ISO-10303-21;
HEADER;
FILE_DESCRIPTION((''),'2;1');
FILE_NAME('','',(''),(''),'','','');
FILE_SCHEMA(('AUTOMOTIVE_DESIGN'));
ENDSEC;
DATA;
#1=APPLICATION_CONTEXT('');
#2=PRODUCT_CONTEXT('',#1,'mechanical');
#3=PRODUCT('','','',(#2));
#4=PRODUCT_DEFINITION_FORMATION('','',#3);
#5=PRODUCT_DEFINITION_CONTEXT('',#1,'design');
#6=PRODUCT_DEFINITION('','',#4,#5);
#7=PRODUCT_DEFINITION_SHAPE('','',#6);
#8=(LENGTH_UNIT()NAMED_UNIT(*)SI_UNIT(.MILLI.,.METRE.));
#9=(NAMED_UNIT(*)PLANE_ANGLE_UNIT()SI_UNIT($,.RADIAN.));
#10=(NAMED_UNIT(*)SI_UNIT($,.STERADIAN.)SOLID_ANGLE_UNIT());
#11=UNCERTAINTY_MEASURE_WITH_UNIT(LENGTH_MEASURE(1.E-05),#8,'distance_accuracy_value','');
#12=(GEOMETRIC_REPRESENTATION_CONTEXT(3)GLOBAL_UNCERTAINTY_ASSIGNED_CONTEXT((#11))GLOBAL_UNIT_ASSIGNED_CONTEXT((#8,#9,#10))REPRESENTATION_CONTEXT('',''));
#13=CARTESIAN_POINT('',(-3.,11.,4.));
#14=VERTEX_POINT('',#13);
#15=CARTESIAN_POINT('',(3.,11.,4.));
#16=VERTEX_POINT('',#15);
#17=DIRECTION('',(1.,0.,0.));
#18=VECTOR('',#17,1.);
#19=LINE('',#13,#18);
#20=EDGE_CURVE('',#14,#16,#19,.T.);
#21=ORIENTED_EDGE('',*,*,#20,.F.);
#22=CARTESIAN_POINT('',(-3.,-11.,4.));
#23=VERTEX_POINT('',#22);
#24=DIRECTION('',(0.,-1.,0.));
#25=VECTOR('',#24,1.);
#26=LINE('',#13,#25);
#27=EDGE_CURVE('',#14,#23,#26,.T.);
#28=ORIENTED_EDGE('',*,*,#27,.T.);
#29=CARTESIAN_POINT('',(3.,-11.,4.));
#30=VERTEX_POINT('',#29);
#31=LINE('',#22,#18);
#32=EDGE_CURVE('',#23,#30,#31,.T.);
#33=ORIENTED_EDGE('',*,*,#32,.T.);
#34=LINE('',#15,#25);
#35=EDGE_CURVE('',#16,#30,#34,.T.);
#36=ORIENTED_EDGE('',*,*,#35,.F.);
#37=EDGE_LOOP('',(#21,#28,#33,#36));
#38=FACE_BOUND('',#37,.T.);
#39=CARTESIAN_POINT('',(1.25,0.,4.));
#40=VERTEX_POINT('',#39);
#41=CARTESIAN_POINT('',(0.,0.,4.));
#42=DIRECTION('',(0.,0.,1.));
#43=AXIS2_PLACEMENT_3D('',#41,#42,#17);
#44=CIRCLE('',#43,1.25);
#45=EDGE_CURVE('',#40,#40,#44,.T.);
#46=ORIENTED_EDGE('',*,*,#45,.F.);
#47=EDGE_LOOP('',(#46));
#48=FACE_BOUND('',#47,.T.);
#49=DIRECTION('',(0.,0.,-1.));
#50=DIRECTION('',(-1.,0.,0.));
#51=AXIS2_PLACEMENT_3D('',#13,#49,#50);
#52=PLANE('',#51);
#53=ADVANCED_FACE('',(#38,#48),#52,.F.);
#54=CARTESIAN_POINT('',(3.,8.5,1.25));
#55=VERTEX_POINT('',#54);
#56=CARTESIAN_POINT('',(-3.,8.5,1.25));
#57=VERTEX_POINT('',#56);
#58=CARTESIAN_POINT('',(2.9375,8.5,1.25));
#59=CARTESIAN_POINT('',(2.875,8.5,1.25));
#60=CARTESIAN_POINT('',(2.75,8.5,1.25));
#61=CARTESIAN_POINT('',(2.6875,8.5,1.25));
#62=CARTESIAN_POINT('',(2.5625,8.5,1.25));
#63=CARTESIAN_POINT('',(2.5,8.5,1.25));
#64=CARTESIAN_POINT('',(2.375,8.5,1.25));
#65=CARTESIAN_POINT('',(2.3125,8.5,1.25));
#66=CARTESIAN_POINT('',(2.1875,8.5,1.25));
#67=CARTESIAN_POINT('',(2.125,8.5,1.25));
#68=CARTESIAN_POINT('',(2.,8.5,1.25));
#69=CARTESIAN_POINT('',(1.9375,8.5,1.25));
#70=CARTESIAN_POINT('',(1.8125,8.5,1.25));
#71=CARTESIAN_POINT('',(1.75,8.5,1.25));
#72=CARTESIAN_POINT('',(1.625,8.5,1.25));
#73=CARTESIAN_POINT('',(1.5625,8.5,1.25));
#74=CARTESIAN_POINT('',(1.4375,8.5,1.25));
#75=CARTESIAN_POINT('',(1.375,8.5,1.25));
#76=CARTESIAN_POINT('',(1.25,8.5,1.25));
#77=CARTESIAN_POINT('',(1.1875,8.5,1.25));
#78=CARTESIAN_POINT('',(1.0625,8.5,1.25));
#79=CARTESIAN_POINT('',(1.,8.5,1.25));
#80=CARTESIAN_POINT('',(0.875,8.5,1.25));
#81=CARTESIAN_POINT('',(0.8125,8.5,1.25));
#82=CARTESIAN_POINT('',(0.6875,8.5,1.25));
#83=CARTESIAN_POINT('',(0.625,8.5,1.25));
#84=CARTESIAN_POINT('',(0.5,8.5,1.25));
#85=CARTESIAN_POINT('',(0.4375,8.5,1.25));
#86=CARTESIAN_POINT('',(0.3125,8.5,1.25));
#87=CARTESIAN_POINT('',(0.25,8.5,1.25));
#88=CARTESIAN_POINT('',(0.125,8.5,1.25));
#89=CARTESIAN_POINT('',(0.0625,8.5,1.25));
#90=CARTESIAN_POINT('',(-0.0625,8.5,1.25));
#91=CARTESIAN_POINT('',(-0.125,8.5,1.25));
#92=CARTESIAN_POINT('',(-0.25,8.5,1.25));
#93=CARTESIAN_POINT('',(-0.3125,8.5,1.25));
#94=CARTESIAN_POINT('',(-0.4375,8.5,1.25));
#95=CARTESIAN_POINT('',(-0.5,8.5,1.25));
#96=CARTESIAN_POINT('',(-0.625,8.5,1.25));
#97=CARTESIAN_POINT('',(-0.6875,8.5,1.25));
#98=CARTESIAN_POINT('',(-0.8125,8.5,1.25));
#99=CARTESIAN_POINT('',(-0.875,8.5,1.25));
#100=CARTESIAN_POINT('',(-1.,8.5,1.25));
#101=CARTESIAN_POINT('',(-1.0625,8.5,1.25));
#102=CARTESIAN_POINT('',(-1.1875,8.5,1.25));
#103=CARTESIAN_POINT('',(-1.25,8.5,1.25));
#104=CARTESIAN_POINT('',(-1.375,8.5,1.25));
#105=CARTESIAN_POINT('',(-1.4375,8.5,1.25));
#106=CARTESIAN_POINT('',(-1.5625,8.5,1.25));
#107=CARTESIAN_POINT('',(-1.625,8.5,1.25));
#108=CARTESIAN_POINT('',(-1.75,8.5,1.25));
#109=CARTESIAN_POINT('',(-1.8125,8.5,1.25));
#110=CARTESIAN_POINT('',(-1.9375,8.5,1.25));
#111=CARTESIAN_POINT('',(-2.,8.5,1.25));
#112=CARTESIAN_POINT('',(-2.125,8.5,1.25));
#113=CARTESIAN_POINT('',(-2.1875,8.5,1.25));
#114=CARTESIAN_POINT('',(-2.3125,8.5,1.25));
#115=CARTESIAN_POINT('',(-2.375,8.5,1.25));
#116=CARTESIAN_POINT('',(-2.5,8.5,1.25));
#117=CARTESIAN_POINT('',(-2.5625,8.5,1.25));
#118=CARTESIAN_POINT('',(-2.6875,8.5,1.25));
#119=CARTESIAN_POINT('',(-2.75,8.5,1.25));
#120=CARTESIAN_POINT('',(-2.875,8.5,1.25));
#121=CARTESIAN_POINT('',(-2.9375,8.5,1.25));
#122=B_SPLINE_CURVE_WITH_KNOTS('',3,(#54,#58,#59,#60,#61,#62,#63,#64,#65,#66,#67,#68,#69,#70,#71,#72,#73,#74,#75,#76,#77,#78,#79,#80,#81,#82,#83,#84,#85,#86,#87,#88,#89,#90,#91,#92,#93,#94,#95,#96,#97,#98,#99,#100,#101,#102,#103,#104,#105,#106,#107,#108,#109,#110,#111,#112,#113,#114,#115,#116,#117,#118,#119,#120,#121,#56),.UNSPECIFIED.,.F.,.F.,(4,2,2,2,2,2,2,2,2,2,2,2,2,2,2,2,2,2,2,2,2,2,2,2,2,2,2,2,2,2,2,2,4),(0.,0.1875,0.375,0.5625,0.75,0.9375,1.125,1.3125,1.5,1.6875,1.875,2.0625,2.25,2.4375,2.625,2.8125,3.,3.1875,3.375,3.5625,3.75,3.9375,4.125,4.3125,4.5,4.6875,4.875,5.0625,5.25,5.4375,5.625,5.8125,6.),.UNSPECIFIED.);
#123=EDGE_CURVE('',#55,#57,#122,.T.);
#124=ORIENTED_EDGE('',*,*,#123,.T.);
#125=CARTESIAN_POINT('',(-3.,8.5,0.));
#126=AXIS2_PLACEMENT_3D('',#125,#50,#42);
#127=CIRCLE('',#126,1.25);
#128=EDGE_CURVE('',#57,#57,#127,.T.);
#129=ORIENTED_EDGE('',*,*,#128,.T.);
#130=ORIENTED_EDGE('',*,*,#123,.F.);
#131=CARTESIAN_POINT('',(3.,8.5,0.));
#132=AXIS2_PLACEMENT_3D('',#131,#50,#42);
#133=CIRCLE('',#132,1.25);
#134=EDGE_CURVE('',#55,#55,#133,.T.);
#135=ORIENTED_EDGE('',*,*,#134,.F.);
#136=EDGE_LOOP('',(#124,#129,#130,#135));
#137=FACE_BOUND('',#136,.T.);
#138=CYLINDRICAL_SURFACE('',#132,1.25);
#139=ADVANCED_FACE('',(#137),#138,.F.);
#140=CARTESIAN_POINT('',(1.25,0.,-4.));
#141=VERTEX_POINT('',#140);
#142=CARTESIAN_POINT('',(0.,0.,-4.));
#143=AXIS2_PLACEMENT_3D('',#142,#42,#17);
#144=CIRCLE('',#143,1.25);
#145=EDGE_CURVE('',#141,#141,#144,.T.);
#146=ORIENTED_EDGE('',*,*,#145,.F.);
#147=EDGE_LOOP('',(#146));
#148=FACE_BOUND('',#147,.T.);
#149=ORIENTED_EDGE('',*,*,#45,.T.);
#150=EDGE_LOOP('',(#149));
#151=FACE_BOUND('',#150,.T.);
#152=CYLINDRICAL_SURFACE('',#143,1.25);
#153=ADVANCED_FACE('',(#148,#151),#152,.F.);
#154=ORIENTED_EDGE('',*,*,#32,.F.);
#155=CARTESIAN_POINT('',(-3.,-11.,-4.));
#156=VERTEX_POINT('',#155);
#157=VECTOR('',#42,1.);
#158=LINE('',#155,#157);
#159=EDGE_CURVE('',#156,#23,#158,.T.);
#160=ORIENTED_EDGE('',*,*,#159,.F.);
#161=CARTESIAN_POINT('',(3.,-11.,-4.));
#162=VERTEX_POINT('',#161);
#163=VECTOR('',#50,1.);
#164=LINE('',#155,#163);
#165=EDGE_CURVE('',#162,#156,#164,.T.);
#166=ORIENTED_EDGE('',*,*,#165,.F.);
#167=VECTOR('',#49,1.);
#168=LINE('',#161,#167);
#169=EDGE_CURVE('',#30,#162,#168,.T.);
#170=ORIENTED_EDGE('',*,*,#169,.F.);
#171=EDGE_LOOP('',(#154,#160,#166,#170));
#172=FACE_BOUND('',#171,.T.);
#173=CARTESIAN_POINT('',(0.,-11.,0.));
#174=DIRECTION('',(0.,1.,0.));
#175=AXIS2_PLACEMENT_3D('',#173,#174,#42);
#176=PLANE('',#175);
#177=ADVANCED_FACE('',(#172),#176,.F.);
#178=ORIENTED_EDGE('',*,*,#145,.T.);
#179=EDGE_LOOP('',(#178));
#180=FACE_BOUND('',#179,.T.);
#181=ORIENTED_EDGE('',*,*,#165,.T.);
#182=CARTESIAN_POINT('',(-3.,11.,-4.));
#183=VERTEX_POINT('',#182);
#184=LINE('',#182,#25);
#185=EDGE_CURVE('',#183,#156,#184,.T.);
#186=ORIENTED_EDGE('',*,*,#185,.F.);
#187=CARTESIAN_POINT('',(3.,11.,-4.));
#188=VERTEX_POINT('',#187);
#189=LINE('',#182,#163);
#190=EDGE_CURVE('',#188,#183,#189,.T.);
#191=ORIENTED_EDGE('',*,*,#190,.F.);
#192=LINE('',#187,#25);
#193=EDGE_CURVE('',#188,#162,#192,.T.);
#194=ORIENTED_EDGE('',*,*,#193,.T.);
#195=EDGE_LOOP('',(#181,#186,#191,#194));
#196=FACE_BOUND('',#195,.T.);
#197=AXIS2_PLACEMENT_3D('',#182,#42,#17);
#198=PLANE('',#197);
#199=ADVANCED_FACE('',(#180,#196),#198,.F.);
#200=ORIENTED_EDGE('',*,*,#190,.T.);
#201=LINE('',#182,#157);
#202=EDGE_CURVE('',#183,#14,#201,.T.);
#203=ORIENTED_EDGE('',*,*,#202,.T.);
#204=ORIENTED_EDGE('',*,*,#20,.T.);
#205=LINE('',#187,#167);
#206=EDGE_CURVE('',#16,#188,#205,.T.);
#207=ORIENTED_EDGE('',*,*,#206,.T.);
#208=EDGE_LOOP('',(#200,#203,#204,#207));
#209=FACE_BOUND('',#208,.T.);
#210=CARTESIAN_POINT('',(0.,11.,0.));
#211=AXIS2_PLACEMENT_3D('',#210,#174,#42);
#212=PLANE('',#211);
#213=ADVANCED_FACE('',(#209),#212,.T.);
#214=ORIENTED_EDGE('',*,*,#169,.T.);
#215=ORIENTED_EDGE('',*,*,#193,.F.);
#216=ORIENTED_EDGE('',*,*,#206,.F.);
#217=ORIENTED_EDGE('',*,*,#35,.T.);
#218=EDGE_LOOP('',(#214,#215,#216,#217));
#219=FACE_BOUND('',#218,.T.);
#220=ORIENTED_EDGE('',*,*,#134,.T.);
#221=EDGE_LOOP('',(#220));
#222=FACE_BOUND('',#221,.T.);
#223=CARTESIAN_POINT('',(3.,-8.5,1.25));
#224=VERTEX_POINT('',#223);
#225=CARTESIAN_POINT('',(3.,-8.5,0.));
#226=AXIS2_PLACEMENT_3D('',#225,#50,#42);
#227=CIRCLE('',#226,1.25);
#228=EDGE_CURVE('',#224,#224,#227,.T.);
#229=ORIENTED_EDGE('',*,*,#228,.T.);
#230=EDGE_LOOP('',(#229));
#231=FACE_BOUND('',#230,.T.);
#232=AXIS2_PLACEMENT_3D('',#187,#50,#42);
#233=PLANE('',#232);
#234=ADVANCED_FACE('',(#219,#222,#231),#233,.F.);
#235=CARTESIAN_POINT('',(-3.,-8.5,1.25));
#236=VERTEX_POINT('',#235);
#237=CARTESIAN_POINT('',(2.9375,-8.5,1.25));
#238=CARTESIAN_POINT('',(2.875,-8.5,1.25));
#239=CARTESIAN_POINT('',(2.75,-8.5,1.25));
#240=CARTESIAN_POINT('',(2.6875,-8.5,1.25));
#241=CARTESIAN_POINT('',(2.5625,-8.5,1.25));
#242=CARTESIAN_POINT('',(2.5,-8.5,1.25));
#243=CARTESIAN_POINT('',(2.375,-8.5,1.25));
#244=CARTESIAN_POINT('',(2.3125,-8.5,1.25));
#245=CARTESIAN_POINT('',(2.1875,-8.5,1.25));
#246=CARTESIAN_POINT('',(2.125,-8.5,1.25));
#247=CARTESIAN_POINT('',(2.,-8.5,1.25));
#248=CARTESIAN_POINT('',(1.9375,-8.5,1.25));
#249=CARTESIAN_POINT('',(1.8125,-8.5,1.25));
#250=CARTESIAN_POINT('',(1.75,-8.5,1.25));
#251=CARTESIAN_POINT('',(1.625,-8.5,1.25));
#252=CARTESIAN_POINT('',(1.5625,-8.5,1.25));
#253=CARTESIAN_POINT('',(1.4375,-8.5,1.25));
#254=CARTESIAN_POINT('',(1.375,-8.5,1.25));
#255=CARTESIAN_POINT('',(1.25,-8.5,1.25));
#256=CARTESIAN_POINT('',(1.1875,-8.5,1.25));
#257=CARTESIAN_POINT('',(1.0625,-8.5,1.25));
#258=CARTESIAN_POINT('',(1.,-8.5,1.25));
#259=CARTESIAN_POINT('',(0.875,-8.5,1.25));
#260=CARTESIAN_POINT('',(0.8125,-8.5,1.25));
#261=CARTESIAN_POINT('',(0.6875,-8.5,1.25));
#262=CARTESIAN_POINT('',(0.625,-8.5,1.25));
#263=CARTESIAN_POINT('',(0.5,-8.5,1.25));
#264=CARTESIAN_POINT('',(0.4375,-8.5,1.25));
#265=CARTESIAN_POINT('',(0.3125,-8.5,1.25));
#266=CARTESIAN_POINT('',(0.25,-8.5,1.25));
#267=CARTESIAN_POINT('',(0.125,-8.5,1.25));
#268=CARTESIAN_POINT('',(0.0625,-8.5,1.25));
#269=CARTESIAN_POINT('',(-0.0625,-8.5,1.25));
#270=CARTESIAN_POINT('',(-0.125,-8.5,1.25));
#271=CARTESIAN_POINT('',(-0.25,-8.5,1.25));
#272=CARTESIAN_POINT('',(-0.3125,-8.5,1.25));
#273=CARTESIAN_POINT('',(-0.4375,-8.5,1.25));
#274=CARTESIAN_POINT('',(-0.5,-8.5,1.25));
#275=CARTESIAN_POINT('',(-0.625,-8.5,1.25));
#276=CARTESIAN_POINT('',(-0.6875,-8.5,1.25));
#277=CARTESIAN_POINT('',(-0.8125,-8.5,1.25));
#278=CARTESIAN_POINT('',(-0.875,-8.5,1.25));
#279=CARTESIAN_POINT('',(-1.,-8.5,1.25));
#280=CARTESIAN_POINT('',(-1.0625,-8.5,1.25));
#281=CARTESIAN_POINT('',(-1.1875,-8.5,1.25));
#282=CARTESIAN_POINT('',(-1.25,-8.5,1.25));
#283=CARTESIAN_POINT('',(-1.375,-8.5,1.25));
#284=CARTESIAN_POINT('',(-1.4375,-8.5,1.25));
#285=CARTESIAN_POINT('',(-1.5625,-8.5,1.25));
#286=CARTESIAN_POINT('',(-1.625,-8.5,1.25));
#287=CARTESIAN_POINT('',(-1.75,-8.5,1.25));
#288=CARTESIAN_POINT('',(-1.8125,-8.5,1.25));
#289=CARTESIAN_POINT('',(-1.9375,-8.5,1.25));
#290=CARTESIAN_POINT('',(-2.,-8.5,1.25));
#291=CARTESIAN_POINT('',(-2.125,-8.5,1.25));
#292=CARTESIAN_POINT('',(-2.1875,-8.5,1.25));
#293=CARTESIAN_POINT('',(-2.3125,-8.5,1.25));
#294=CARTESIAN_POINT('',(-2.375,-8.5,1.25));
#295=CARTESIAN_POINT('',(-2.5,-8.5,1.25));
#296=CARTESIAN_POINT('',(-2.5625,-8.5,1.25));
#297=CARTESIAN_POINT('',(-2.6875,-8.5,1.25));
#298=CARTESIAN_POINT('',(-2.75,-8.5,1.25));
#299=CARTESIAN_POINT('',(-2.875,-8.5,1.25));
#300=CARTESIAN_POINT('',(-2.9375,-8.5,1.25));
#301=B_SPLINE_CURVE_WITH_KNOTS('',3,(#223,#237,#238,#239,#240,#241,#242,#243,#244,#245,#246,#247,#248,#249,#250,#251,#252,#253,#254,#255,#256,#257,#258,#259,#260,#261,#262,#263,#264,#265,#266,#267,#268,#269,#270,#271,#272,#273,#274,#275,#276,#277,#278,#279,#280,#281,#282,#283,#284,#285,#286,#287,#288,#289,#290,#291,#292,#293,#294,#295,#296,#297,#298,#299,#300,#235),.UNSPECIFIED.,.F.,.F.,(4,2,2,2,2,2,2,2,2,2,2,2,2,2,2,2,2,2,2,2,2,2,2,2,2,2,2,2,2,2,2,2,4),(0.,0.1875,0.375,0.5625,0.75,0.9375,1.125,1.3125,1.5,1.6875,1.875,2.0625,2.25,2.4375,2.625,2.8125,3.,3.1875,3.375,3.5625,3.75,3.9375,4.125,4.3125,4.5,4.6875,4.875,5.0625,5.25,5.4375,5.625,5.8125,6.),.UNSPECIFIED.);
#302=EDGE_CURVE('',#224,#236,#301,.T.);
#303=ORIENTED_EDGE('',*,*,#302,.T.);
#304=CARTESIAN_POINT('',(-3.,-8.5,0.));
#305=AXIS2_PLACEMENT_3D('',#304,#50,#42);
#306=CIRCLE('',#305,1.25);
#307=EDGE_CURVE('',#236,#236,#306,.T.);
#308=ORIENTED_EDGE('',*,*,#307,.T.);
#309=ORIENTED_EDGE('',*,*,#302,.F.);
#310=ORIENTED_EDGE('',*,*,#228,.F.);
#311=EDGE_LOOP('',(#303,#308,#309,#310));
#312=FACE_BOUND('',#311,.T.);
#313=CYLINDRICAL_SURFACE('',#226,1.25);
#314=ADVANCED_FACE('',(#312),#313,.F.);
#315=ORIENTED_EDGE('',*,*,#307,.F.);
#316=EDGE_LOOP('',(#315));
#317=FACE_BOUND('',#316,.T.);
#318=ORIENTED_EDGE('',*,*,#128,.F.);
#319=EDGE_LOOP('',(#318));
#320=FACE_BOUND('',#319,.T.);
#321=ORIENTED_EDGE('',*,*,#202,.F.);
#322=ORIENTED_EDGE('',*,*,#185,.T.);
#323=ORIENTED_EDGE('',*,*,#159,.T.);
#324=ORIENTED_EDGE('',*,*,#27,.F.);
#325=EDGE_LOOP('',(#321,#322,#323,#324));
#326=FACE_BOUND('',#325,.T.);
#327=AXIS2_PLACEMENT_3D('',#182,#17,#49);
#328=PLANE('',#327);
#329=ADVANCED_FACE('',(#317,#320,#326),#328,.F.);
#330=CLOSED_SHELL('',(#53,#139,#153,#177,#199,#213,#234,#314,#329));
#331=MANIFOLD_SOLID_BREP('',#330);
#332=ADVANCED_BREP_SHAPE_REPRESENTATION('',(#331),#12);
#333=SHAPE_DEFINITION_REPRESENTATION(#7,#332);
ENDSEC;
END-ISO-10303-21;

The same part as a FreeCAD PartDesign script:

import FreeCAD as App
import Part
import Sketcher
from FreeCAD import Vector

doc = App.newDocument("Part")
body = doc.addObject("PartDesign::Body", "Body")

# Sketch on XZ plane
sketch1 = body.newObject("Sketcher::SketchObject", "Sketch")
sketch1.AttachmentSupport = (doc.getObject("XZ_Plane"), [""])
sketch1.MapMode = "FlatFace"
sketch1.addGeometry(Part.LineSegment(Vector(-3, -4, 0), Vector(-3, 4, 0)), False)
sketch1.addGeometry(Part.LineSegment(Vector(-3, 4, 0), Vector(3, 4, 0)), False)
sketch1.addGeometry(Part.LineSegment(Vector(3, 4, 0), Vector(3, -4, 0)), False)
sketch1.addGeometry(Part.LineSegment(Vector(3, -4, 0), Vector(-3, -4, 0)), False)
sketch1.addConstraint(Sketcher.Constraint("Coincident", 0, 2, 1, 1))
sketch1.addConstraint(Sketcher.Constraint("Coincident", 1, 2, 2, 1))
sketch1.addConstraint(Sketcher.Constraint("Coincident", 2, 2, 3, 1))
sketch1.addConstraint(Sketcher.Constraint("Coincident", 3, 2, 0, 1))
sketch1.addConstraint(Sketcher.Constraint("Vertical", 0))
sketch1.addConstraint(Sketcher.Constraint("Horizontal", 1))
sketch1.addConstraint(Sketcher.Constraint("Vertical", 2))
sketch1.addConstraint(Sketcher.Constraint("Horizontal", 3))
sketch1.addConstraint(Sketcher.Constraint("Symmetric", 0, 2, 2, 2, -1, 1))
sketch1.addConstraint(Sketcher.Constraint("DistanceX", 1, 1, 1, 2, 6.0))
sketch1.addConstraint(Sketcher.Constraint("DistanceY", 0, 1, 0, 2, 8.0))
pad1 = body.newObject("PartDesign::Pad", "Pad")
pad1.Profile = sketch1
pad1.Length = 22
pad1.Midplane = True

# Sketch on XY plane
sketch2 = body.newObject("Sketcher::SketchObject", "Sketch001")
sketch2.AttachmentSupport = (doc.getObject("XY_Plane"), [""])
sketch2.MapMode = "FlatFace"
sketch2.AttachmentOffset = App.Placement(Vector(0, 0, 4), App.Rotation())
sketch2.addGeometry(Part.Circle(Vector(0, 0, 0), Vector(0, 0, 1), 1.25), False)
sketch2.addConstraint(Sketcher.Constraint("Coincident", 0, 3, -1, 1))
sketch2.addConstraint(Sketcher.Constraint("Diameter", 0, 2.5))
pocket1 = body.newObject("PartDesign::Pocket", "Pocket")
pocket1.Profile = sketch2
pocket1.Type = "ThroughAll"

# Sketch on YZ plane
sketch3 = body.newObject("Sketcher::SketchObject", "Sketch002")
sketch3.AttachmentSupport = (doc.getObject("YZ_Plane"), [""])
sketch3.MapMode = "FlatFace"
sketch3.AttachmentOffset = App.Placement(Vector(0, 0, -3), App.Rotation())
sketch3.addGeometry(Part.Circle(Vector(8.5, 0, 0), Vector(0, 0, 1), 1.25), False)
sketch3.addGeometry(Part.Circle(Vector(-8.5, 0, 0), Vector(0, 0, 1), 1.25), False)
sketch3.addConstraint(Sketcher.Constraint("Equal", 0, 1))
sketch3.addConstraint(Sketcher.Constraint("Symmetric", 0, 3, 1, 3, -1, 1))
sketch3.addConstraint(Sketcher.Constraint("PointOnObject", 0, 3, -1))
sketch3.addConstraint(Sketcher.Constraint("Diameter", 0, 2.5))
sketch3.addConstraint(Sketcher.Constraint("DistanceX", 1, 3, 0, 3, 17.0))
pocket2 = body.newObject("PartDesign::Pocket", "Pocket001")
pocket2.Profile = sketch3
pocket2.Type = "ThroughAll"
pocket2.Reversed = True

doc.recompute()
